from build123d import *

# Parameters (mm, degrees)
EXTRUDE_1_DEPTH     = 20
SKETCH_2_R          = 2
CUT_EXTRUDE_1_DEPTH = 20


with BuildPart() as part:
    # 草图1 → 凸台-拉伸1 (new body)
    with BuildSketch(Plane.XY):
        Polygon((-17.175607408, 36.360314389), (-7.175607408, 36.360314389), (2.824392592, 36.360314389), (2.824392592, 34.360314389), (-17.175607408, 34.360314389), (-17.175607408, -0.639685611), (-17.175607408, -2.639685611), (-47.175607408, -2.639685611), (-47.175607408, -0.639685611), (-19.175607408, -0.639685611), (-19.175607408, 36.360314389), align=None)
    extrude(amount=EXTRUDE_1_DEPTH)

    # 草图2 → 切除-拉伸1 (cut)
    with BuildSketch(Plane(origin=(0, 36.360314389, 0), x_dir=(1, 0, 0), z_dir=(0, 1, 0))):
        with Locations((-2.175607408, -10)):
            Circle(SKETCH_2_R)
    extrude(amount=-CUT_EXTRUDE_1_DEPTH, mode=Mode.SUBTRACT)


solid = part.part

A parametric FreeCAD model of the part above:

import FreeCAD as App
import Part
import Sketcher
from FreeCAD import Vector
Q = App.Units.Quantity


def add_polygon(sketch, points):
    """Adds a closed chain of lines whose ends are joined by coincident constraints."""
    first, n = sketch.GeometryCount, len(points)
    for a, b in zip(points, points[1:] + points[:1]):
        sketch.addGeometry(Part.LineSegment(App.Vector(*a, 0), App.Vector(*b, 0)), False)
    for i in range(n):
        sketch.addConstraint(Sketcher.Constraint("Coincident", first + i, 2, first + (i + 1) % n, 1))

doc = App.newDocument("Part")
body = doc.addObject("PartDesign::Body", "Body")

sketch1 = doc.addObject("Sketcher::SketchObject", "Sketch")
body.addObject(sketch1)
sketch1.AttachmentSupport = (doc.XY_Plane, [""])
sketch1.MapMode = "FlatFace"
add_polygon(sketch1, [(2.824393, 36.360314), (-19.175607, 36.360314), (-19.175607, -0.639686), (-47.175607, -0.639686), (-47.175607, -2.639686), (-17.175607, -2.639686), (-17.175607, 34.360314), (2.824393, 34.360314)])
sketch1.addConstraint(Sketcher.Constraint("Horizontal", 0))
sketch1.addConstraint(Sketcher.Constraint("Vertical", 1))
sketch1.addConstraint(Sketcher.Constraint("Horizontal", 2))
sketch1.addConstraint(Sketcher.Constraint("Vertical", 3))
sketch1.addConstraint(Sketcher.Constraint("Horizontal", 4))
sketch1.addConstraint(Sketcher.Constraint("Vertical", 5))
sketch1.addConstraint(Sketcher.Constraint("Horizontal", 6))
sketch1.addConstraint(Sketcher.Constraint("Vertical", 7))
sketch1.addConstraint(Sketcher.Constraint("Equal", 1, 5))
sketch1.addConstraint(Sketcher.Constraint("DistanceX", 0, 2, 0, 1, Q("22 mm")))
sketch1.addConstraint(Sketcher.Constraint("DistanceX", 2, 2, 2, 1, Q("28 mm")))
sketch1.addConstraint(Sketcher.Constraint("DistanceX", 4, 1, 4, 2, Q("30 mm")))
sketch1.addConstraint(Sketcher.Constraint("DistanceY", 1, 2, 1, 1, Q("37 mm")))
sketch1.addConstraint(Sketcher.Constraint("DistanceY", 3, 2, 3, 1, Q("2 mm")))
sketch1.addConstraint(Sketcher.Constraint("DistanceX", 0, 2, -1, 1, Q("19.175607 mm")))
sketch1.addConstraint(Sketcher.Constraint("DistanceY", -1, 1, 0, 2, Q("36.360314 mm")))
pad1 = doc.addObject("PartDesign::Pad", "Pad")
body.addObject(pad1)
pad1.Profile = sketch1
pad1.Length = 20

sketch2 = doc.addObject("Sketcher::SketchObject", "Sketch001")
body.addObject(sketch2)
sketch2.AttachmentSupport = (doc.XZ_Plane, [""])
sketch2.MapMode = "FlatFace"
sketch2.AttachmentOffset = App.Placement(Vector(0, 0, -36.360314), App.Rotation())
sketch2.addGeometry(Part.Circle(Vector(-2.175607, 10, 0), Vector(0, 0, 1), 2), False)
sketch2.addConstraint(Sketcher.Constraint("Diameter", 0, Q("4 mm")))
sketch2.addConstraint(Sketcher.Constraint("DistanceY", -1, 1, 0, 3, Q("10 mm")))
sketch2.addConstraint(Sketcher.Constraint("DistanceX", 0, 3, -1, 1, Q("2.175607 mm")))
pocket1 = doc.addObject("PartDesign::Pocket", "Pocket")
body.addObject(pocket1)
pocket1.Profile = sketch2
pocket1.Length = 20
pocket1.Reversed = True

doc.recompute()
